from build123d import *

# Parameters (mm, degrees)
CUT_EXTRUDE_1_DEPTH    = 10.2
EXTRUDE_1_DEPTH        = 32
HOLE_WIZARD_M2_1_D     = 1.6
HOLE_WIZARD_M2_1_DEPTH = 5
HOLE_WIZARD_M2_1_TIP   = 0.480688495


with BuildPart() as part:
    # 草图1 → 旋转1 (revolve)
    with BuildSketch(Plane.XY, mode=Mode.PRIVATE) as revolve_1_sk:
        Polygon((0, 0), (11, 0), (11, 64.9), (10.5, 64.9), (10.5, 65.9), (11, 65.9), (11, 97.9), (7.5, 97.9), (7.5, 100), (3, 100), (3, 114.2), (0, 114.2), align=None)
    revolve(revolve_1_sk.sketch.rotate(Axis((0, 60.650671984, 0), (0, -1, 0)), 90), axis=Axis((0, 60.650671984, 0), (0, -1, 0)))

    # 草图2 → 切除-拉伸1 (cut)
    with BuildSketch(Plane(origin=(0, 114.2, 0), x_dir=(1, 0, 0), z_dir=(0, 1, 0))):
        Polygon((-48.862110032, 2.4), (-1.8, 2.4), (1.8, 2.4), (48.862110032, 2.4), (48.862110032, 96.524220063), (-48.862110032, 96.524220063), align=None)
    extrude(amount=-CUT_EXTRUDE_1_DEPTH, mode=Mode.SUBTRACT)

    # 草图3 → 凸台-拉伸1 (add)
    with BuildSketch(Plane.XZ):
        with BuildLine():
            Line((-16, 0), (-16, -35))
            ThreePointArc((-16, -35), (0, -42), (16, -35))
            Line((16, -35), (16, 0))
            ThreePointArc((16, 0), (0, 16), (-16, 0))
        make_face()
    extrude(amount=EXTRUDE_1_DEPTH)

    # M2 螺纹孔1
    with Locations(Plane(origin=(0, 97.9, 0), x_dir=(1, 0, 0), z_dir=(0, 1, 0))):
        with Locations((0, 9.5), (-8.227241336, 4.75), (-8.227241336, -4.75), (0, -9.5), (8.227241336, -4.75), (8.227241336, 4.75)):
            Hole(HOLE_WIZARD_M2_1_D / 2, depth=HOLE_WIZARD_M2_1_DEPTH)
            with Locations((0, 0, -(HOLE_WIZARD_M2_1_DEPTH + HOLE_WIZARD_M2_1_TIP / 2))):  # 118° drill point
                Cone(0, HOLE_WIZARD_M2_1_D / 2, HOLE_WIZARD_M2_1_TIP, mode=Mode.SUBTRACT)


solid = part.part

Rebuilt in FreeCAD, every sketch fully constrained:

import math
import FreeCAD as App
import Part
import Sketcher
from FreeCAD import Vector
Q = App.Units.Quantity


def add_polygon(sketch, points):
    """Adds a closed chain of lines whose ends are joined by coincident constraints."""
    first, n = sketch.GeometryCount, len(points)
    for a, b in zip(points, points[1:] + points[:1]):
        sketch.addGeometry(Part.LineSegment(App.Vector(*a, 0), App.Vector(*b, 0)), False)
    for i in range(n):
        sketch.addConstraint(Sketcher.Constraint("Coincident", first + i, 2, first + (i + 1) % n, 1))

doc = App.newDocument("Part")
params = doc.addObject("Spreadsheet::Sheet", "Params")
for row, (alias, value) in enumerate([
    ("sketch1_width", "11 mm"),
    ("sketch1_width2", "3 mm"),
    ("sketch1_height", "1 mm"),
    ("sketch1_height2", "32 mm"),
    ("sketch1_width3", "0.5 mm"),
    ("revolution_angle", "360 deg"),
    ("pocket1_length", "10.2 mm"),
    ("sketch3_radius", "16 mm"),
    ("sketch3_height", "35 mm"),
    ("pad1_length", "32 mm"),
    ("sketch4_diameter", "1.6 mm"),
    ("hole_diameter", "1.6 mm"),
    ("hole_depth", "5 mm"),
], start=1):
    params.set(f"A{row}", alias)
    params.set(f"B{row}", "=" + value)
    params.setAlias(f"B{row}", alias)

body = doc.addObject("PartDesign::Body", "Body")

# Sketch on XY plane
sketch1 = body.newObject("Sketcher::SketchObject", "Sketch")
sketch1.AttachmentSupport = (doc.getObject("XY_Plane"), [""])
sketch1.MapMode = "FlatFace"
add_polygon(sketch1, [(0, 0), (11, 0), (11, 64.9), (10.5, 64.9), (10.5, 65.9), (11, 65.9), (11, 97.9), (7.5, 97.9), (7.5, 100), (3, 100), (3, 114.2), (0, 114.2)])  # lines 0-11
sketch1.addConstraint([
    Sketcher.Constraint("Horizontal", 0),
    Sketcher.Constraint("Vertical", 1),
    Sketcher.Constraint("Horizontal", 2),
    Sketcher.Constraint("Vertical", 3),
    Sketcher.Constraint("Horizontal", 4),
    Sketcher.Constraint("Vertical", 5),
    Sketcher.Constraint("Horizontal", 6),
    Sketcher.Constraint("Vertical", 7),
    Sketcher.Constraint("Horizontal", 8),
    Sketcher.Constraint("Vertical", 9),
    Sketcher.Constraint("Horizontal", 10),
    Sketcher.Constraint("Vertical", 11),
    Sketcher.Constraint("Coincident", 11, 2, -1, 1),
    Sketcher.Constraint("Vertical", 1, 2, 4, 2),
    Sketcher.Constraint("DistanceX", 0, 1, 0, 2, Q("11 mm")),
    Sketcher.Constraint("DistanceX", 10, 2, 10, 1, Q("3 mm")),
    Sketcher.Constraint("DistanceY", 3, 1, 3, 2, Q("1 mm")),
    Sketcher.Constraint("DistanceY", 5, 1, 5, 2, Q("32 mm")),
    Sketcher.Constraint("DistanceX", 2, 2, 2, 1, Q("0.5 mm")),
    Sketcher.Constraint("DistanceX", 6, 2, 6, 1, Q("3.5 mm")),
    Sketcher.Constraint("DistanceY", 1, 1, 1, 2, Q("64.9 mm")),
    Sketcher.Constraint("DistanceY", 7, 1, 7, 2, Q("2.1 mm")),
    Sketcher.Constraint("DistanceY", 9, 1, 9, 2, Q("14.2 mm")),
])
sketch1.setExpression("Constraints[26]", "Params.sketch1_width")
sketch1.setExpression("Constraints[27]", "Params.sketch1_width2")
sketch1.setExpression("Constraints[28]", "Params.sketch1_height")
sketch1.setExpression("Constraints[29]", "Params.sketch1_height2")
sketch1.setExpression("Constraints[30]", "Params.sketch1_width3")
revolution = body.newObject("PartDesign::Revolution", "Revolution")
revolution.Profile = sketch1
revolution.ReferenceAxis = (sketch1, ["V_Axis"])
revolution.setExpression("Angle", "Params.revolution_angle")

# Sketch on XZ plane
sketch2 = body.newObject("Sketcher::SketchObject", "Sketch001")
sketch2.AttachmentSupport = (doc.getObject("XZ_Plane"), [""])
sketch2.MapMode = "FlatFace"
sketch2.AttachmentOffset = App.Placement(Vector(0, 0, -114.2), App.Rotation())
add_polygon(sketch2, [(-49, -2), (49, -2), (49, -97), (-49, -97)])  # lines 0-3
sketch2.addConstraint([
    Sketcher.Constraint("Horizontal", 0),
    Sketcher.Constraint("Vertical", 1),
    Sketcher.Constraint("Horizontal", 2),
    Sketcher.Constraint("Vertical", 3),
    Sketcher.Constraint("DistanceY", 0, 2, -1, 1, Q("2.4 mm")),
    Sketcher.Constraint("DistanceX", 0, 1, 0, 2, Q("97.72422 mm")),
    Sketcher.Constraint("DistanceY", 1, 2, 1, 1, Q("94.12422 mm")),
    Sketcher.Constraint("DistanceX", -1, 1, 0, 2, Q("48.86211 mm")),
])
pocket1 = body.newObject("PartDesign::Pocket", "Pocket")
pocket1.Profile = sketch2
pocket1.setExpression("Length", "Params.pocket1_length")
pocket1.Reversed = True

# Sketch on XZ plane
sketch3 = body.newObject("Sketcher::SketchObject", "Sketch002")
sketch3.AttachmentSupport = (doc.getObject("XZ_Plane"), [""])
sketch3.MapMode = "FlatFace"
sketch3.addGeometry([
    Part.LineSegment(Vector(-16, 0, 0), Vector(-16, -35, 0)),
    Part.ArcOfCircle(Part.Circle(Vector(0, -20, 0), Vector(0, 0, 1), 22), math.radians(-137), math.radians(-43)),
    Part.LineSegment(Vector(16, -35, 0), Vector(16, 0, 0)),
    Part.ArcOfCircle(Part.Circle(Vector(0, 0, 0), Vector(0, 0, 1), 16), math.radians(0), math.radians(180)),
], False)
sketch3.addConstraint([
    Sketcher.Constraint("Coincident", 0, 2, 1, 1),
    Sketcher.Constraint("Coincident", 1, 2, 2, 1),
    Sketcher.Constraint("Tangent", 2, 2, 3, 1),
    Sketcher.Constraint("Tangent", 3, 2, 0, 1),
    Sketcher.Constraint("Vertical", 0),
    Sketcher.Constraint("Vertical", 2),
    Sketcher.Constraint("Coincident", 3, 3, -1, 1),
    Sketcher.Constraint("PointOnObject", 1, 3, -2),
    Sketcher.Constraint("Radius", 3, Q("16 mm")),
    Sketcher.Constraint("DistanceY", 0, 2, 0, 1, Q("35 mm")),
    Sketcher.Constraint("Radius", 1, Q("21.785714 mm")),
])
sketch3.setExpression("Constraints[8]", "Params.sketch3_radius")
sketch3.setExpression("Constraints[9]", "Params.sketch3_height")
pad1 = body.newObject("PartDesign::Pad", "Pad")
pad1.Profile = sketch3
pad1.setExpression("Length", "Params.pad1_length")

# Sketch on XZ plane
sketch4 = body.newObject("Sketcher::SketchObject", "Sketch003")
sketch4.AttachmentSupport = (doc.getObject("XZ_Plane"), [""])
sketch4.MapMode = "FlatFace"
sketch4.AttachmentOffset = App.Placement(Vector(0, 0, -97.9), App.Rotation())
sketch4.addGeometry([
    Part.Circle(Vector(0, -9.5, 0), Vector(0, 0, 1), 0.8),  # 0
    Part.Circle(Vector(-8.2, -4.8, 0), Vector(0, 0, 1), 0.8),  # 1
    Part.Circle(Vector(-8.2, 4.8, 0), Vector(0, 0, 1), 0.8),  # 2
    Part.Circle(Vector(0, 9.5, 0), Vector(0, 0, 1), 0.8),  # 3
    Part.Circle(Vector(8.2, 4.8, 0), Vector(0, 0, 1), 0.8),  # 4
    Part.Circle(Vector(8.2, -4.8, 0), Vector(0, 0, 1), 0.8),  # 5
], False)
sketch4.addConstraint([
    Sketcher.Constraint("Equal", 0, 1),
    Sketcher.Constraint("Equal", 1, 2),
    Sketcher.Constraint("Equal", 2, 3),
    Sketcher.Constraint("Equal", 3, 4),
    Sketcher.Constraint("Equal", 4, 5),
    Sketcher.Constraint("Symmetric", 0, 3, 3, 3, -1, 1),
    Sketcher.Constraint("Symmetric", 1, 3, 4, 3, -1, 1),
    Sketcher.Constraint("Symmetric", 2, 3, 5, 3, -1, 1),
    Sketcher.Constraint("Symmetric", 2, 3, 4, 3, -2),
    Sketcher.Constraint("PointOnObject", 0, 3, -2),
    Sketcher.Constraint("Diameter", 0, Q("1.6 mm")),
    Sketcher.Constraint("DistanceY", 0, 3, 3, 3, Q("19 mm")),
    Sketcher.Constraint("DistanceY", 1, 3, 2, 3, Q("9.5 mm")),
    Sketcher.Constraint("DistanceX", 1, 3, -1, 1, Q("8.227241 mm")),
])
sketch4.setExpression("Constraints[10]", "Params.sketch4_diameter")
doc.recompute()
hole = body.newObject("PartDesign::Hole", "Hole")
hole.Profile = sketch4
hole.ThreadType = "None"
hole.setExpression("Diameter", "Params.hole_diameter")
hole.DepthType = "Dimension"
hole.setExpression("Depth", "Params.hole_depth")
hole.DrillPoint = "Angled"
hole.DrillPointAngle = 118
hole.Reversed = True

doc.recompute()
